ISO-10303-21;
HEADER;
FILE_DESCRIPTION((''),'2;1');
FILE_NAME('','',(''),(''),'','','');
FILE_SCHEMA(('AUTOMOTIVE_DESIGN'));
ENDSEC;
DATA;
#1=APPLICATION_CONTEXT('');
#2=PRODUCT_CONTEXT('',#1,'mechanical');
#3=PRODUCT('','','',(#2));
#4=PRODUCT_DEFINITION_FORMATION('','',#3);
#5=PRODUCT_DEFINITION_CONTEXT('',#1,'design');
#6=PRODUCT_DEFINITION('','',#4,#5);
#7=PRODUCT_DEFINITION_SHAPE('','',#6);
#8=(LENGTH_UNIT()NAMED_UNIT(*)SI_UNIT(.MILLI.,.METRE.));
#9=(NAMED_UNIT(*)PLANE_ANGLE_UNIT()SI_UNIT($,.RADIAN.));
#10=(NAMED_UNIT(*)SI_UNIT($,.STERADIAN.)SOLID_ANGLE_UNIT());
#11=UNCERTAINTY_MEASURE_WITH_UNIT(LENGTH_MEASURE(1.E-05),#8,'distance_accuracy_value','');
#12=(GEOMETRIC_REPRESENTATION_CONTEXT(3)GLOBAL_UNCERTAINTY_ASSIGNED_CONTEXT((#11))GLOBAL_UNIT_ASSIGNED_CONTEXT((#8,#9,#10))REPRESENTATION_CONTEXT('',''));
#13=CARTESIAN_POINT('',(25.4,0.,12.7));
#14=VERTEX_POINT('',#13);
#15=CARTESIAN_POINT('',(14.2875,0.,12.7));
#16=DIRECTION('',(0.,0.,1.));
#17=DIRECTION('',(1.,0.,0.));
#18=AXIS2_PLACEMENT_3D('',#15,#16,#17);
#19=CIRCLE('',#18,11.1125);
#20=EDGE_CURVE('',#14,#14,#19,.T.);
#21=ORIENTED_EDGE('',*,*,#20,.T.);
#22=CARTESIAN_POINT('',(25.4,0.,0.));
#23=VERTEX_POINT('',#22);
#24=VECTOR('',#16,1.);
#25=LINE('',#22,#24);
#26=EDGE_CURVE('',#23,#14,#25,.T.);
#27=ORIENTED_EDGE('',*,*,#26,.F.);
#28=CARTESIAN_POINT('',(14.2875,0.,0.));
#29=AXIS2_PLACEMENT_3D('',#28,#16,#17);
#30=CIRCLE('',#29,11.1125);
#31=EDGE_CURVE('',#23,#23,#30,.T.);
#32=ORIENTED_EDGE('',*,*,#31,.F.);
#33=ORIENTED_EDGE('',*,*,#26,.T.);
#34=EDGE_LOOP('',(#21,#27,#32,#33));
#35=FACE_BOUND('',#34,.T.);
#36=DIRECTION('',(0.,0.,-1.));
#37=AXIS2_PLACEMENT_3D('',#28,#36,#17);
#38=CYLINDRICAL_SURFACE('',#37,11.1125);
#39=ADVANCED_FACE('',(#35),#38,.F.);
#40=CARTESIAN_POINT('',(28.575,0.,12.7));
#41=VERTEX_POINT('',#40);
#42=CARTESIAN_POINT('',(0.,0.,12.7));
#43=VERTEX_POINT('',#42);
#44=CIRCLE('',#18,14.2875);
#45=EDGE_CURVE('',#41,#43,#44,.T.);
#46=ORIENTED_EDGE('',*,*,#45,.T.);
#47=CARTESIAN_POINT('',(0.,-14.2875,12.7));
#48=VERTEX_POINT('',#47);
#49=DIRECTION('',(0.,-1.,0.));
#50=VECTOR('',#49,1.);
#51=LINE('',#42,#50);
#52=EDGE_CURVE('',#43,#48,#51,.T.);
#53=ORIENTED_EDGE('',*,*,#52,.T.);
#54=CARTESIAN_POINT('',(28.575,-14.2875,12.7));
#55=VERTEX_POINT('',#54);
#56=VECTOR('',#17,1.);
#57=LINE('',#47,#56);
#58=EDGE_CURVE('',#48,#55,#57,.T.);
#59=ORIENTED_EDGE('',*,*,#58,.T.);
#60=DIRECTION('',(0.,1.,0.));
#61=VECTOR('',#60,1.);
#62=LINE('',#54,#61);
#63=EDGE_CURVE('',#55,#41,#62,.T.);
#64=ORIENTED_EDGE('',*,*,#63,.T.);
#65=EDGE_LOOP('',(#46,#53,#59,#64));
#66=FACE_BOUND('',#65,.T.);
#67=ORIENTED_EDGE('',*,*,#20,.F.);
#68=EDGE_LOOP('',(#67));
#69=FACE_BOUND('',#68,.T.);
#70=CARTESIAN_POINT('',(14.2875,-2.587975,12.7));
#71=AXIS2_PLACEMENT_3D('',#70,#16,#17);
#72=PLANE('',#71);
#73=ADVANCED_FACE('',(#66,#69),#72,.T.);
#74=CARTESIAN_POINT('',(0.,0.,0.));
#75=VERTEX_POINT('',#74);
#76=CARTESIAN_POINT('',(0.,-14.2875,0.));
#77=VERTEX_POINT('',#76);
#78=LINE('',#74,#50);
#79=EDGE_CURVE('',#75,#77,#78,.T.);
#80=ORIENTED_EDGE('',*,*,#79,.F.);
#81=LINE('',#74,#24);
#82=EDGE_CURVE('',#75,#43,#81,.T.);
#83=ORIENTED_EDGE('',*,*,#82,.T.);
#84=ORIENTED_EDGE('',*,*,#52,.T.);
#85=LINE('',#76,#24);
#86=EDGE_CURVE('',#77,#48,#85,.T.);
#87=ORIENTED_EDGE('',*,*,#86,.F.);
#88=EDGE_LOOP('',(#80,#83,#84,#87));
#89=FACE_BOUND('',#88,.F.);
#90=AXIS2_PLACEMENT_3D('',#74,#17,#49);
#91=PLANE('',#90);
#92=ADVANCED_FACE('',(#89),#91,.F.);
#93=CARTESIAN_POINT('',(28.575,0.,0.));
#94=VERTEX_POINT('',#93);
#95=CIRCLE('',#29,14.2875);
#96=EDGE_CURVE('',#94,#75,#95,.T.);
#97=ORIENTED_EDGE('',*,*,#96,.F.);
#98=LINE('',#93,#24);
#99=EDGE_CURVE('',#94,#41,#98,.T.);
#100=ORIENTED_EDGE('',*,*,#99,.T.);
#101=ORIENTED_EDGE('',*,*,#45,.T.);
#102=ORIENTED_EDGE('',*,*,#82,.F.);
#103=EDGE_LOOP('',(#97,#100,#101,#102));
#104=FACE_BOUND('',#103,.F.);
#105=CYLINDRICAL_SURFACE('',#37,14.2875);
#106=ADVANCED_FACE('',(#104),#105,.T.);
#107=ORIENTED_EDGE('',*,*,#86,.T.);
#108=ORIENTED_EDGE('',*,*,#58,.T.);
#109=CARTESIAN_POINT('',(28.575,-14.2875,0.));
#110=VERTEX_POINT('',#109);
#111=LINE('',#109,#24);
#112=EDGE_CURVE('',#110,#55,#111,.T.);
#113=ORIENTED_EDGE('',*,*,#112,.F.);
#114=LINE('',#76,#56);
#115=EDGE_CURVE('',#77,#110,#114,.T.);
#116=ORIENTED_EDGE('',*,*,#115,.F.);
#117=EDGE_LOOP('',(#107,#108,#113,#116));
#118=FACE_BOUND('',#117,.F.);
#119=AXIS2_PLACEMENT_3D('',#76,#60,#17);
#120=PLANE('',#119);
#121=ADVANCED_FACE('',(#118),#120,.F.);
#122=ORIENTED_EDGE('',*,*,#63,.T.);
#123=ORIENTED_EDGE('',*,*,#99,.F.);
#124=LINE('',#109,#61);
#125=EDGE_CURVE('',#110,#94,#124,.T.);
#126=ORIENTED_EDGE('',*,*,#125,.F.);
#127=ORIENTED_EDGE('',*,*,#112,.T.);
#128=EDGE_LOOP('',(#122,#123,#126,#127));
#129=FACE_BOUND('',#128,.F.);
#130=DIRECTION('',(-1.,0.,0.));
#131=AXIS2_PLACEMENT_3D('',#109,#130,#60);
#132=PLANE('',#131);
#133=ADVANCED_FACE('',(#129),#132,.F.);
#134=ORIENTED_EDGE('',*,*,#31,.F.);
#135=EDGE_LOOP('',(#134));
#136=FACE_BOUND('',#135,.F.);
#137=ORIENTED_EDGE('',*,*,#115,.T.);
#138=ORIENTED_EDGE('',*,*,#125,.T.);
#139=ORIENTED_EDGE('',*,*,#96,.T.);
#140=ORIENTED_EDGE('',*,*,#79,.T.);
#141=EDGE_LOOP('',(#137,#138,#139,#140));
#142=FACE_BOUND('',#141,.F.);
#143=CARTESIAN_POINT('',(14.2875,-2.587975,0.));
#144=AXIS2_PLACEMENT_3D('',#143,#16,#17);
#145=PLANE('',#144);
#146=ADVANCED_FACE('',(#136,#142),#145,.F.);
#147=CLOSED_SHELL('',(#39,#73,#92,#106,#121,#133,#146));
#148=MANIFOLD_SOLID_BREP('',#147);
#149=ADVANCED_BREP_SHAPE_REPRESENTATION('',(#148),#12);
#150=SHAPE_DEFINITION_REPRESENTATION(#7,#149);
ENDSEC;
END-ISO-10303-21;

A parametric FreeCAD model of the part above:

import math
import FreeCAD as App
import Part
import Sketcher
from FreeCAD import Vector
Q = App.Units.Quantity

doc = App.newDocument("Part")
body = doc.addObject("PartDesign::Body", "Body")

sketch1 = body.newObject("Sketcher::SketchObject", "Sketch")
sketch1.AttachmentSupport = (doc.getObject("XY_Plane"), [""])
sketch1.MapMode = "FlatFace"
sketch1.addGeometry(Part.LineSegment(Vector(0, 0, 0), Vector(0, -14.2875, 0)), False)
sketch1.addGeometry(Part.LineSegment(Vector(0, -14.2875, 0), Vector(28.575, -14.2875, 0)), False)
sketch1.addGeometry(Part.LineSegment(Vector(28.575, -14.2875, 0), Vector(28.575, 0, 0)), False)
sketch1.addGeometry(Part.ArcOfCircle(Part.Circle(Vector(14.2875, 0, 0), Vector(0, 0, 1), 14.2875), math.radians(0), math.radians(180)), False)
sketch1.addGeometry(Part.Circle(Vector(14.2875, 0, 0), Vector(0, 0, 1), 11.1125), False)
sketch1.addConstraint(Sketcher.Constraint("Coincident", 0, 2, 1, 1))
sketch1.addConstraint(Sketcher.Constraint("Coincident", 1, 2, 2, 1))
sketch1.addConstraint(Sketcher.Constraint("Tangent", 2, 2, 3, 1))
sketch1.addConstraint(Sketcher.Constraint("Tangent", 3, 2, 0, 1))
sketch1.addConstraint(Sketcher.Constraint("Vertical", 0))
sketch1.addConstraint(Sketcher.Constraint("Horizontal", 1))
sketch1.addConstraint(Sketcher.Constraint("Vertical", 2))
sketch1.addConstraint(Sketcher.Constraint("Coincident", 3, 2, -1, 1))
sketch1.addConstraint(Sketcher.Constraint("Coincident", 4, 3, 3, 3))
sketch1.addConstraint(Sketcher.Constraint("Diameter", 4, Q("0.875 in")))
sketch1.addConstraint(Sketcher.Constraint("Radius", 3, Q("0.5625 in")))
sketch1.addConstraint(Sketcher.Constraint("DistanceY", 0, 2, 0, 1, Q("0.5625 in")))
pad1 = body.newObject("PartDesign::Pad", "Pad")
pad1.Profile = sketch1
pad1.Length = Q("0.5 in")

doc.recompute()
